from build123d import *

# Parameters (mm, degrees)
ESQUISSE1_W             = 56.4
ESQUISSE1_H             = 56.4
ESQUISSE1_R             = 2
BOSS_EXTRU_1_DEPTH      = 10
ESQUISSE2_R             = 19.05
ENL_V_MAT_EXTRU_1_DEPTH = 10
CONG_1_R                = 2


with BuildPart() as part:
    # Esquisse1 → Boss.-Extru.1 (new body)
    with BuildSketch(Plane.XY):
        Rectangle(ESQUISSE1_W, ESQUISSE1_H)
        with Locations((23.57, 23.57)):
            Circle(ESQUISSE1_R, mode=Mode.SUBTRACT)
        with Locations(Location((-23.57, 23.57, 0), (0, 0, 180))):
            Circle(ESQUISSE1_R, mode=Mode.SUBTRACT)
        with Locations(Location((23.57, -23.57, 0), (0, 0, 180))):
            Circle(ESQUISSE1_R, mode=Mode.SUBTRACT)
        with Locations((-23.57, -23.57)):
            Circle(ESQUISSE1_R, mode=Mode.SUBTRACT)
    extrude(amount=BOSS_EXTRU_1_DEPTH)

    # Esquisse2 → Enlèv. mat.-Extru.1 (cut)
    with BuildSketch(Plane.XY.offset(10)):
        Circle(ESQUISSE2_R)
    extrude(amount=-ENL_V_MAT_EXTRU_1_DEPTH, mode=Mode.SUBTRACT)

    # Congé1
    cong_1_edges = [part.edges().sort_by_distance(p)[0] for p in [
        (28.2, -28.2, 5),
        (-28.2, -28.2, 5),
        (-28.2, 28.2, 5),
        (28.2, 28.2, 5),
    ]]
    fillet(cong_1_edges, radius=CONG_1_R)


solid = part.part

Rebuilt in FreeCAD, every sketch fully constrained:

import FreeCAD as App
import Part
import Sketcher


def edges_at(feature, points):
    """Names of the edges that pass closest to the given points."""
    edges = feature.Shape.Edges
    near = lambda p: min(range(len(edges)), key=lambda i: edges[i].distToShape(Part.Vertex(*p))[0])
    return sorted({f"Edge{near(p) + 1}" for p in points})


def add_polygon(sketch, points):
    """Adds a closed chain of lines whose ends are joined by coincident constraints."""
    first, n = sketch.GeometryCount, len(points)
    for a, b in zip(points, points[1:] + points[:1]):
        sketch.addGeometry(Part.LineSegment(App.Vector(*a, 0), App.Vector(*b, 0)), False)
    for i in range(n):
        sketch.addConstraint(Sketcher.Constraint("Coincident", first + i, 2, first + (i + 1) % n, 1))

doc = App.newDocument("Part")
body = doc.addObject("PartDesign::Body", "Body")

# Sketch on XY plane
sketch1 = body.newObject("Sketcher::SketchObject", "Sketch")
sketch1.AttachmentSupport = (doc.getObject("XY_Plane"), [""])
sketch1.MapMode = "FlatFace"
add_polygon(sketch1, [(-28.2, 28.2), (-28.2, -28.2), (28.2, -28.2), (28.2, 28.2)])  # lines 0-3
sketch1.addGeometry(Part.Circle(App.Vector(-23.57, -23.57, 0), App.Vector(0, 0, 1), 2), False)  # 4
sketch1.addGeometry(Part.Circle(App.Vector(23.57, -23.57, 0), App.Vector(0, 0, 1), 2), False)  # 5
sketch1.addGeometry(Part.Circle(App.Vector(-23.57, 23.57, 0), App.Vector(0, 0, 1), 2), False)  # 6
sketch1.addGeometry(Part.Circle(App.Vector(23.57, 23.57, 0), App.Vector(0, 0, 1), 2), False)  # 7
sketch1.addConstraint([
    Sketcher.Constraint("Vertical", 0),
    Sketcher.Constraint("Horizontal", 1),
    Sketcher.Constraint("Vertical", 2),
    Sketcher.Constraint("Horizontal", 3),
    Sketcher.Constraint("Equal", 4, 5),
    Sketcher.Constraint("Equal", 5, 6),
    Sketcher.Constraint("Equal", 6, 7),
    Sketcher.Constraint("Symmetric", 5, 3, 6, 3, -1, 1),
    Sketcher.Constraint("Symmetric", 4, 3, 7, 3, -1, 1),
    Sketcher.Constraint("Symmetric", 0, 2, 2, 2, -1, 1),
    Sketcher.Constraint("Symmetric", 4, 3, 5, 3, -2),
    Sketcher.Constraint("Equal", 3, 0),
    Sketcher.Constraint("Diameter", 4, 4.0),
    Sketcher.Constraint("DistanceX", 1, 1, 1, 2, 56.4),
    Sketcher.Constraint("DistanceX", 4, 3, -1, 1, 23.57),
    Sketcher.Constraint("DistanceY", 4, 3, -1, 1, 23.57),
])
pad1 = body.newObject("PartDesign::Pad", "Pad")
pad1.Profile = sketch1
pad1.Length = 10

# Sketch on XY plane
sketch2 = body.newObject("Sketcher::SketchObject", "Sketch001")
sketch2.AttachmentSupport = (doc.getObject("XY_Plane"), [""])
sketch2.MapMode = "FlatFace"
sketch2.AttachmentOffset = App.Placement(App.Vector(0, 0, 10), App.Rotation())
sketch2.addGeometry(Part.Circle(App.Vector(0, 0, 0), App.Vector(0, 0, 1), 19.05), False)
sketch2.addConstraint([
    Sketcher.Constraint("Coincident", 0, 3, -1, 1),
    Sketcher.Constraint("Diameter", 0, 38.1),
])
pocket1 = body.newObject("PartDesign::Pocket", "Pocket")
pocket1.Profile = sketch2
pocket1.Length = 10
doc.recompute()

fillet = body.newObject("PartDesign::Fillet", "Fillet")
fillet.Base = (pocket1, edges_at(pocket1, [
    (28.2, -28.2, 5),
    (-28.2, -28.2, 5),
    (-28.2, 28.2, 5),
    (28.2, 28.2, 5),
]))
fillet.Radius = 2

doc.recompute()
